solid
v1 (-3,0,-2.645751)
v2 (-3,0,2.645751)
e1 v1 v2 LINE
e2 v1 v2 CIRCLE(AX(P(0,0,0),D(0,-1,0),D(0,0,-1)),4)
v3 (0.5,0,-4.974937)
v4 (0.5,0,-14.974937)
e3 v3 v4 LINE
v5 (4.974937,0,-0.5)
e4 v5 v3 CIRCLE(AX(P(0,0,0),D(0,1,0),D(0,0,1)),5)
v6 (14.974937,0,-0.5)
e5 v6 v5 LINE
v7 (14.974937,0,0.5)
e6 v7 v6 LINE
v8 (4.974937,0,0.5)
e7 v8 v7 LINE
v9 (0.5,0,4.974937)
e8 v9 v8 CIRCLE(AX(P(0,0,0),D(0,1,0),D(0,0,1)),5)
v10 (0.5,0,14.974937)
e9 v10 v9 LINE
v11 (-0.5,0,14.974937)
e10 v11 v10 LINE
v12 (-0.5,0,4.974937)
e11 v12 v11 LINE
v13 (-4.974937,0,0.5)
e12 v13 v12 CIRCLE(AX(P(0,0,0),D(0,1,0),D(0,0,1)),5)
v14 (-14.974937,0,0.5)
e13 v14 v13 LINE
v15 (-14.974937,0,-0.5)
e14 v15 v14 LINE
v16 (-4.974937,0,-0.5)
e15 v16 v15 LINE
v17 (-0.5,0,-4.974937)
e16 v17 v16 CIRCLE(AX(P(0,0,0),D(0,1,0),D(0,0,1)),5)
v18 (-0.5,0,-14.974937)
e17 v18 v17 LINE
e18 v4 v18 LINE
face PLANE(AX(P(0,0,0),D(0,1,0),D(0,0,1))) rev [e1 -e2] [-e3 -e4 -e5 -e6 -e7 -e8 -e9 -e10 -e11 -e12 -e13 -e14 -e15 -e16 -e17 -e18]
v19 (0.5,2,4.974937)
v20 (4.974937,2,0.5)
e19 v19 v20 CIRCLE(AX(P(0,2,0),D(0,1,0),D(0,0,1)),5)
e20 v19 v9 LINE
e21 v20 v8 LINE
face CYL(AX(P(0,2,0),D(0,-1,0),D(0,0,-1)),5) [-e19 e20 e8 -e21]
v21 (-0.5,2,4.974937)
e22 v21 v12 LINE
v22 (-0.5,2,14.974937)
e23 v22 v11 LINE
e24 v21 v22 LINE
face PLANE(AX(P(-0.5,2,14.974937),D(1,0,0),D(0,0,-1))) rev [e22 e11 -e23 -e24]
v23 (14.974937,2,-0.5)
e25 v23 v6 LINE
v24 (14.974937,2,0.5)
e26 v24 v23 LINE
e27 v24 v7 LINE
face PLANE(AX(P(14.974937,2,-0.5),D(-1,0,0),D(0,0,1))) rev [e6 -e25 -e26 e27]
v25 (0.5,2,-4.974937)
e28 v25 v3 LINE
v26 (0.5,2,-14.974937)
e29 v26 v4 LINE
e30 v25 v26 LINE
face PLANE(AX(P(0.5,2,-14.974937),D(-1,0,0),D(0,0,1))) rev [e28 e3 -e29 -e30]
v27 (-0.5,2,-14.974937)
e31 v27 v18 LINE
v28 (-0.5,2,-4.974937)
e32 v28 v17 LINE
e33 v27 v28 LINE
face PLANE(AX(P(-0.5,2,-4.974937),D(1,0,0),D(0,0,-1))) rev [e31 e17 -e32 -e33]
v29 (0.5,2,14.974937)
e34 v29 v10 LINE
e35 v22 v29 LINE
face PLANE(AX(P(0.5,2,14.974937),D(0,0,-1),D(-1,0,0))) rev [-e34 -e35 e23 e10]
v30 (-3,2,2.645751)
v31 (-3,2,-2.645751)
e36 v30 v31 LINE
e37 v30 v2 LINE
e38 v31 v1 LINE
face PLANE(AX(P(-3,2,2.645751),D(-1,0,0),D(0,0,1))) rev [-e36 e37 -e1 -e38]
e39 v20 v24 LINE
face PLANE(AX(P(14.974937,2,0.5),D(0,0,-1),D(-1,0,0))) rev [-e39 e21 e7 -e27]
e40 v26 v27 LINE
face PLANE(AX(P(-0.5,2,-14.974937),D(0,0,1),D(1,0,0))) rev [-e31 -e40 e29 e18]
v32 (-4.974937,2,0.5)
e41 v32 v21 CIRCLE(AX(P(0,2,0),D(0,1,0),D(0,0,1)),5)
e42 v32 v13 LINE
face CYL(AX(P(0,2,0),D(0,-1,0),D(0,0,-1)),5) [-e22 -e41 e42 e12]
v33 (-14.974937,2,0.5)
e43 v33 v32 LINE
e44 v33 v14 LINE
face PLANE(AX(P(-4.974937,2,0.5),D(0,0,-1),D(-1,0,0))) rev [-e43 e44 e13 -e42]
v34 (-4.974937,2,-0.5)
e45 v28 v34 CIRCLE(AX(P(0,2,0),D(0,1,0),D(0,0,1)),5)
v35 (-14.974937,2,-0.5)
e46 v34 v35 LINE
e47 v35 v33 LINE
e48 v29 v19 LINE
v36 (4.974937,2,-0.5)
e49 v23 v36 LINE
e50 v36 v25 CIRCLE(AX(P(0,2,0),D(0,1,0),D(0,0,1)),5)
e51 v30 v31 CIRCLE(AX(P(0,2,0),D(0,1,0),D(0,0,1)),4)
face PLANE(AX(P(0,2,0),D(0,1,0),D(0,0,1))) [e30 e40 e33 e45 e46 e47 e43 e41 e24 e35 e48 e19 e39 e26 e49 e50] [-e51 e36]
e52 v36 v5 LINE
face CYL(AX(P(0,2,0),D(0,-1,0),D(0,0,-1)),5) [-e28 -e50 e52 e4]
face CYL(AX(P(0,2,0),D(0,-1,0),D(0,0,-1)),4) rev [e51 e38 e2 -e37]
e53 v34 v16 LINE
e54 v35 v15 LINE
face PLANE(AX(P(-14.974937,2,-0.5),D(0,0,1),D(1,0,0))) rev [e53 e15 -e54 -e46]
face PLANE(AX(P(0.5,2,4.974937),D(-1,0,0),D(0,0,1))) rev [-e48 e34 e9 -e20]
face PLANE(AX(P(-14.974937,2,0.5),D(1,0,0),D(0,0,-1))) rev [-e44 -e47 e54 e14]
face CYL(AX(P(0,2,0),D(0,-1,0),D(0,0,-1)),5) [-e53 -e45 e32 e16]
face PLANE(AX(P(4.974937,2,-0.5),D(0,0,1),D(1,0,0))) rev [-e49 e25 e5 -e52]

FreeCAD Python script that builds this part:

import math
import FreeCAD as App
import Part
import Sketcher

doc = App.newDocument("Part")
body = doc.addObject("PartDesign::Body", "Body")

sketch1 = body.newObject("Sketcher::SketchObject", "Sketch")
sketch1.AttachmentSupport = (doc.getObject("XZ_Plane"), [""])
sketch1.MapMode = "FlatFace"
sketch1.addGeometry(Part.LineSegment(App.Vector(-0.5, -14.974937, 0), App.Vector(-0.5, -4.974937, 0)), False)
sketch1.addGeometry(Part.ArcOfCircle(Part.Circle(App.Vector(0, 0, 0), App.Vector(0, 0, 1), 5), math.radians(-174.26083), math.radians(-95.73917)), False)
sketch1.addGeometry(Part.LineSegment(App.Vector(-4.974937, -0.5, 0), App.Vector(-14.974937, -0.5, 0)), False)
sketch1.addGeometry(Part.LineSegment(App.Vector(-14.974937, -0.5, 0), App.Vector(-14.974937, 0.5, 0)), False)
sketch1.addGeometry(Part.LineSegment(App.Vector(-14.974937, 0.5, 0), App.Vector(-4.974937, 0.5, 0)), False)
sketch1.addGeometry(Part.ArcOfCircle(Part.Circle(App.Vector(0, 0, 0), App.Vector(0, 0, 1), 5), math.radians(95.73917), math.radians(174.26083)), False)
sketch1.addGeometry(Part.LineSegment(App.Vector(-0.5, 4.974937, 0), App.Vector(-0.5, 14.974937, 0)), False)
sketch1.addGeometry(Part.LineSegment(App.Vector(-0.5, 14.974937, 0), App.Vector(0.5, 14.974937, 0)), False)
sketch1.addGeometry(Part.LineSegment(App.Vector(0.5, 14.974937, 0), App.Vector(0.5, 4.974937, 0)), False)
sketch1.addGeometry(Part.ArcOfCircle(Part.Circle(App.Vector(0, 0, 0), App.Vector(0, 0, 1), 5), math.radians(5.73917), math.radians(84.26083)), False)
sketch1.addGeometry(Part.LineSegment(App.Vector(4.974937, 0.5, 0), App.Vector(14.974937, 0.5, 0)), False)
sketch1.addGeometry(Part.LineSegment(App.Vector(14.974937, 0.5, 0), App.Vector(14.974937, -0.5, 0)), False)
sketch1.addGeometry(Part.LineSegment(App.Vector(14.974937, -0.5, 0), App.Vector(4.974937, -0.5, 0)), False)
sketch1.addGeometry(Part.ArcOfCircle(Part.Circle(App.Vector(0, 0, 0), App.Vector(0, 0, 1), 5), math.radians(-84.26083), math.radians(-5.73917)), False)
sketch1.addGeometry(Part.LineSegment(App.Vector(0.5, -4.974937, 0), App.Vector(0.5, -14.974937, 0)), False)
sketch1.addGeometry(Part.LineSegment(App.Vector(0.5, -14.974937, 0), App.Vector(-0.5, -14.974937, 0)), False)
sketch1.addConstraint(Sketcher.Constraint("Coincident", 0, 2, 1, 2))
sketch1.addConstraint(Sketcher.Constraint("Coincident", 1, 1, 2, 1))
sketch1.addConstraint(Sketcher.Constraint("Coincident", 2, 2, 3, 1))
sketch1.addConstraint(Sketcher.Constraint("Coincident", 3, 2, 4, 1))
sketch1.addConstraint(Sketcher.Constraint("Coincident", 4, 2, 5, 2))
sketch1.addConstraint(Sketcher.Constraint("Coincident", 5, 1, 6, 1))
sketch1.addConstraint(Sketcher.Constraint("Coincident", 6, 2, 7, 1))
sketch1.addConstraint(Sketcher.Constraint("Coincident", 7, 2, 8, 1))
sketch1.addConstraint(Sketcher.Constraint("Coincident", 8, 2, 9, 2))
sketch1.addConstraint(Sketcher.Constraint("Coincident", 9, 1, 10, 1))
sketch1.addConstraint(Sketcher.Constraint("Coincident", 10, 2, 11, 1))
sketch1.addConstraint(Sketcher.Constraint("Coincident", 11, 2, 12, 1))
sketch1.addConstraint(Sketcher.Constraint("Coincident", 12, 2, 13, 2))
sketch1.addConstraint(Sketcher.Constraint("Coincident", 13, 1, 14, 1))
sketch1.addConstraint(Sketcher.Constraint("Coincident", 14, 2, 15, 1))
sketch1.addConstraint(Sketcher.Constraint("Coincident", 15, 2, 0, 1))
sketch1.addConstraint(Sketcher.Constraint("Vertical", 0))
sketch1.addConstraint(Sketcher.Constraint("Horizontal", 2))
sketch1.addConstraint(Sketcher.Constraint("Vertical", 3))
sketch1.addConstraint(Sketcher.Constraint("Horizontal", 4))
sketch1.addConstraint(Sketcher.Constraint("Vertical", 6))
sketch1.addConstraint(Sketcher.Constraint("Horizontal", 7))
sketch1.addConstraint(Sketcher.Constraint("Vertical", 8))
sketch1.addConstraint(Sketcher.Constraint("Horizontal", 10))
sketch1.addConstraint(Sketcher.Constraint("Vertical", 11))
sketch1.addConstraint(Sketcher.Constraint("Horizontal", 12))
sketch1.addConstraint(Sketcher.Constraint("Vertical", 14))
sketch1.addConstraint(Sketcher.Constraint("Horizontal", 15))
sketch1.addConstraint(Sketcher.Constraint("Coincident", 1, 3, -1, 1))
sketch1.addConstraint(Sketcher.Constraint("Coincident", 5, 3, -1, 1))
sketch1.addConstraint(Sketcher.Constraint("Coincident", 9, 3, -1, 1))
sketch1.addConstraint(Sketcher.Constraint("Coincident", 13, 3, -1, 1))
sketch1.addConstraint(Sketcher.Constraint("Equal", 1, 5))
sketch1.addConstraint(Sketcher.Constraint("Equal", 5, 9))
sketch1.addConstraint(Sketcher.Constraint("Equal", 9, 13))
sketch1.addConstraint(Sketcher.Constraint("Symmetric", 2, 2, 10, 2, -1, 1))
sketch1.addConstraint(Sketcher.Constraint("Symmetric", 6, 2, 14, 2, -1, 1))
sketch1.addConstraint(Sketcher.Constraint("Horizontal", 5, 1, 8, 2))
sketch1.addConstraint(Sketcher.Constraint("Horizontal", 4, 2, 9, 1))
sketch1.addConstraint(Sketcher.Constraint("Horizontal", 2, 2, 11, 2))
sketch1.addConstraint(Sketcher.Constraint("Horizontal", 0, 2, 13, 1))
sketch1.addConstraint(Sketcher.Constraint("Equal", 12, 0))
sketch1.addConstraint(Sketcher.Constraint("Equal", 15, 3))
sketch1.addConstraint(Sketcher.Constraint("Radius", 1, 5.0))
sketch1.addConstraint(Sketcher.Constraint("DistanceX", 2, 2, 2, 1, 10.0))
sketch1.addConstraint(Sketcher.Constraint("DistanceX", 7, 1, 7, 2, 1.0))
pad1 = body.newObject("PartDesign::Pad", "Pad")
pad1.Profile = sketch1
pad1.Length = 2
pad1.Reversed = True

sketch2 = body.newObject("Sketcher::SketchObject", "Sketch001")
sketch2.AttachmentSupport = (doc.getObject("XZ_Plane"), [""])
sketch2.MapMode = "FlatFace"
sketch2.addGeometry(Part.LineSegment(App.Vector(-3, -2.645751, 0), App.Vector(-3, 2.645751, 0)), False)
sketch2.addGeometry(Part.ArcOfCircle(Part.Circle(App.Vector(0, 0, 0), App.Vector(0, 0, 1), 4), math.radians(-138.590378), math.radians(138.590378)), False)
sketch2.addConstraint(Sketcher.Constraint("Coincident", 0, 1, 1, 1))
sketch2.addConstraint(Sketcher.Constraint("Coincident", 1, 2, 0, 2))
sketch2.addConstraint(Sketcher.Constraint("Vertical", 0))
sketch2.addConstraint(Sketcher.Constraint("Coincident", 1, 3, -1, 1))
sketch2.addConstraint(Sketcher.Constraint("Radius", 1, 4.0))
sketch2.addConstraint(Sketcher.Constraint("DistanceX", 0, 1, -1, 1, 3.0))
pocket1 = body.newObject("PartDesign::Pocket", "Pocket")
pocket1.Profile = sketch2
pocket1.Type = "ThroughAll"
pocket1.Midplane = True

doc.recompute()
